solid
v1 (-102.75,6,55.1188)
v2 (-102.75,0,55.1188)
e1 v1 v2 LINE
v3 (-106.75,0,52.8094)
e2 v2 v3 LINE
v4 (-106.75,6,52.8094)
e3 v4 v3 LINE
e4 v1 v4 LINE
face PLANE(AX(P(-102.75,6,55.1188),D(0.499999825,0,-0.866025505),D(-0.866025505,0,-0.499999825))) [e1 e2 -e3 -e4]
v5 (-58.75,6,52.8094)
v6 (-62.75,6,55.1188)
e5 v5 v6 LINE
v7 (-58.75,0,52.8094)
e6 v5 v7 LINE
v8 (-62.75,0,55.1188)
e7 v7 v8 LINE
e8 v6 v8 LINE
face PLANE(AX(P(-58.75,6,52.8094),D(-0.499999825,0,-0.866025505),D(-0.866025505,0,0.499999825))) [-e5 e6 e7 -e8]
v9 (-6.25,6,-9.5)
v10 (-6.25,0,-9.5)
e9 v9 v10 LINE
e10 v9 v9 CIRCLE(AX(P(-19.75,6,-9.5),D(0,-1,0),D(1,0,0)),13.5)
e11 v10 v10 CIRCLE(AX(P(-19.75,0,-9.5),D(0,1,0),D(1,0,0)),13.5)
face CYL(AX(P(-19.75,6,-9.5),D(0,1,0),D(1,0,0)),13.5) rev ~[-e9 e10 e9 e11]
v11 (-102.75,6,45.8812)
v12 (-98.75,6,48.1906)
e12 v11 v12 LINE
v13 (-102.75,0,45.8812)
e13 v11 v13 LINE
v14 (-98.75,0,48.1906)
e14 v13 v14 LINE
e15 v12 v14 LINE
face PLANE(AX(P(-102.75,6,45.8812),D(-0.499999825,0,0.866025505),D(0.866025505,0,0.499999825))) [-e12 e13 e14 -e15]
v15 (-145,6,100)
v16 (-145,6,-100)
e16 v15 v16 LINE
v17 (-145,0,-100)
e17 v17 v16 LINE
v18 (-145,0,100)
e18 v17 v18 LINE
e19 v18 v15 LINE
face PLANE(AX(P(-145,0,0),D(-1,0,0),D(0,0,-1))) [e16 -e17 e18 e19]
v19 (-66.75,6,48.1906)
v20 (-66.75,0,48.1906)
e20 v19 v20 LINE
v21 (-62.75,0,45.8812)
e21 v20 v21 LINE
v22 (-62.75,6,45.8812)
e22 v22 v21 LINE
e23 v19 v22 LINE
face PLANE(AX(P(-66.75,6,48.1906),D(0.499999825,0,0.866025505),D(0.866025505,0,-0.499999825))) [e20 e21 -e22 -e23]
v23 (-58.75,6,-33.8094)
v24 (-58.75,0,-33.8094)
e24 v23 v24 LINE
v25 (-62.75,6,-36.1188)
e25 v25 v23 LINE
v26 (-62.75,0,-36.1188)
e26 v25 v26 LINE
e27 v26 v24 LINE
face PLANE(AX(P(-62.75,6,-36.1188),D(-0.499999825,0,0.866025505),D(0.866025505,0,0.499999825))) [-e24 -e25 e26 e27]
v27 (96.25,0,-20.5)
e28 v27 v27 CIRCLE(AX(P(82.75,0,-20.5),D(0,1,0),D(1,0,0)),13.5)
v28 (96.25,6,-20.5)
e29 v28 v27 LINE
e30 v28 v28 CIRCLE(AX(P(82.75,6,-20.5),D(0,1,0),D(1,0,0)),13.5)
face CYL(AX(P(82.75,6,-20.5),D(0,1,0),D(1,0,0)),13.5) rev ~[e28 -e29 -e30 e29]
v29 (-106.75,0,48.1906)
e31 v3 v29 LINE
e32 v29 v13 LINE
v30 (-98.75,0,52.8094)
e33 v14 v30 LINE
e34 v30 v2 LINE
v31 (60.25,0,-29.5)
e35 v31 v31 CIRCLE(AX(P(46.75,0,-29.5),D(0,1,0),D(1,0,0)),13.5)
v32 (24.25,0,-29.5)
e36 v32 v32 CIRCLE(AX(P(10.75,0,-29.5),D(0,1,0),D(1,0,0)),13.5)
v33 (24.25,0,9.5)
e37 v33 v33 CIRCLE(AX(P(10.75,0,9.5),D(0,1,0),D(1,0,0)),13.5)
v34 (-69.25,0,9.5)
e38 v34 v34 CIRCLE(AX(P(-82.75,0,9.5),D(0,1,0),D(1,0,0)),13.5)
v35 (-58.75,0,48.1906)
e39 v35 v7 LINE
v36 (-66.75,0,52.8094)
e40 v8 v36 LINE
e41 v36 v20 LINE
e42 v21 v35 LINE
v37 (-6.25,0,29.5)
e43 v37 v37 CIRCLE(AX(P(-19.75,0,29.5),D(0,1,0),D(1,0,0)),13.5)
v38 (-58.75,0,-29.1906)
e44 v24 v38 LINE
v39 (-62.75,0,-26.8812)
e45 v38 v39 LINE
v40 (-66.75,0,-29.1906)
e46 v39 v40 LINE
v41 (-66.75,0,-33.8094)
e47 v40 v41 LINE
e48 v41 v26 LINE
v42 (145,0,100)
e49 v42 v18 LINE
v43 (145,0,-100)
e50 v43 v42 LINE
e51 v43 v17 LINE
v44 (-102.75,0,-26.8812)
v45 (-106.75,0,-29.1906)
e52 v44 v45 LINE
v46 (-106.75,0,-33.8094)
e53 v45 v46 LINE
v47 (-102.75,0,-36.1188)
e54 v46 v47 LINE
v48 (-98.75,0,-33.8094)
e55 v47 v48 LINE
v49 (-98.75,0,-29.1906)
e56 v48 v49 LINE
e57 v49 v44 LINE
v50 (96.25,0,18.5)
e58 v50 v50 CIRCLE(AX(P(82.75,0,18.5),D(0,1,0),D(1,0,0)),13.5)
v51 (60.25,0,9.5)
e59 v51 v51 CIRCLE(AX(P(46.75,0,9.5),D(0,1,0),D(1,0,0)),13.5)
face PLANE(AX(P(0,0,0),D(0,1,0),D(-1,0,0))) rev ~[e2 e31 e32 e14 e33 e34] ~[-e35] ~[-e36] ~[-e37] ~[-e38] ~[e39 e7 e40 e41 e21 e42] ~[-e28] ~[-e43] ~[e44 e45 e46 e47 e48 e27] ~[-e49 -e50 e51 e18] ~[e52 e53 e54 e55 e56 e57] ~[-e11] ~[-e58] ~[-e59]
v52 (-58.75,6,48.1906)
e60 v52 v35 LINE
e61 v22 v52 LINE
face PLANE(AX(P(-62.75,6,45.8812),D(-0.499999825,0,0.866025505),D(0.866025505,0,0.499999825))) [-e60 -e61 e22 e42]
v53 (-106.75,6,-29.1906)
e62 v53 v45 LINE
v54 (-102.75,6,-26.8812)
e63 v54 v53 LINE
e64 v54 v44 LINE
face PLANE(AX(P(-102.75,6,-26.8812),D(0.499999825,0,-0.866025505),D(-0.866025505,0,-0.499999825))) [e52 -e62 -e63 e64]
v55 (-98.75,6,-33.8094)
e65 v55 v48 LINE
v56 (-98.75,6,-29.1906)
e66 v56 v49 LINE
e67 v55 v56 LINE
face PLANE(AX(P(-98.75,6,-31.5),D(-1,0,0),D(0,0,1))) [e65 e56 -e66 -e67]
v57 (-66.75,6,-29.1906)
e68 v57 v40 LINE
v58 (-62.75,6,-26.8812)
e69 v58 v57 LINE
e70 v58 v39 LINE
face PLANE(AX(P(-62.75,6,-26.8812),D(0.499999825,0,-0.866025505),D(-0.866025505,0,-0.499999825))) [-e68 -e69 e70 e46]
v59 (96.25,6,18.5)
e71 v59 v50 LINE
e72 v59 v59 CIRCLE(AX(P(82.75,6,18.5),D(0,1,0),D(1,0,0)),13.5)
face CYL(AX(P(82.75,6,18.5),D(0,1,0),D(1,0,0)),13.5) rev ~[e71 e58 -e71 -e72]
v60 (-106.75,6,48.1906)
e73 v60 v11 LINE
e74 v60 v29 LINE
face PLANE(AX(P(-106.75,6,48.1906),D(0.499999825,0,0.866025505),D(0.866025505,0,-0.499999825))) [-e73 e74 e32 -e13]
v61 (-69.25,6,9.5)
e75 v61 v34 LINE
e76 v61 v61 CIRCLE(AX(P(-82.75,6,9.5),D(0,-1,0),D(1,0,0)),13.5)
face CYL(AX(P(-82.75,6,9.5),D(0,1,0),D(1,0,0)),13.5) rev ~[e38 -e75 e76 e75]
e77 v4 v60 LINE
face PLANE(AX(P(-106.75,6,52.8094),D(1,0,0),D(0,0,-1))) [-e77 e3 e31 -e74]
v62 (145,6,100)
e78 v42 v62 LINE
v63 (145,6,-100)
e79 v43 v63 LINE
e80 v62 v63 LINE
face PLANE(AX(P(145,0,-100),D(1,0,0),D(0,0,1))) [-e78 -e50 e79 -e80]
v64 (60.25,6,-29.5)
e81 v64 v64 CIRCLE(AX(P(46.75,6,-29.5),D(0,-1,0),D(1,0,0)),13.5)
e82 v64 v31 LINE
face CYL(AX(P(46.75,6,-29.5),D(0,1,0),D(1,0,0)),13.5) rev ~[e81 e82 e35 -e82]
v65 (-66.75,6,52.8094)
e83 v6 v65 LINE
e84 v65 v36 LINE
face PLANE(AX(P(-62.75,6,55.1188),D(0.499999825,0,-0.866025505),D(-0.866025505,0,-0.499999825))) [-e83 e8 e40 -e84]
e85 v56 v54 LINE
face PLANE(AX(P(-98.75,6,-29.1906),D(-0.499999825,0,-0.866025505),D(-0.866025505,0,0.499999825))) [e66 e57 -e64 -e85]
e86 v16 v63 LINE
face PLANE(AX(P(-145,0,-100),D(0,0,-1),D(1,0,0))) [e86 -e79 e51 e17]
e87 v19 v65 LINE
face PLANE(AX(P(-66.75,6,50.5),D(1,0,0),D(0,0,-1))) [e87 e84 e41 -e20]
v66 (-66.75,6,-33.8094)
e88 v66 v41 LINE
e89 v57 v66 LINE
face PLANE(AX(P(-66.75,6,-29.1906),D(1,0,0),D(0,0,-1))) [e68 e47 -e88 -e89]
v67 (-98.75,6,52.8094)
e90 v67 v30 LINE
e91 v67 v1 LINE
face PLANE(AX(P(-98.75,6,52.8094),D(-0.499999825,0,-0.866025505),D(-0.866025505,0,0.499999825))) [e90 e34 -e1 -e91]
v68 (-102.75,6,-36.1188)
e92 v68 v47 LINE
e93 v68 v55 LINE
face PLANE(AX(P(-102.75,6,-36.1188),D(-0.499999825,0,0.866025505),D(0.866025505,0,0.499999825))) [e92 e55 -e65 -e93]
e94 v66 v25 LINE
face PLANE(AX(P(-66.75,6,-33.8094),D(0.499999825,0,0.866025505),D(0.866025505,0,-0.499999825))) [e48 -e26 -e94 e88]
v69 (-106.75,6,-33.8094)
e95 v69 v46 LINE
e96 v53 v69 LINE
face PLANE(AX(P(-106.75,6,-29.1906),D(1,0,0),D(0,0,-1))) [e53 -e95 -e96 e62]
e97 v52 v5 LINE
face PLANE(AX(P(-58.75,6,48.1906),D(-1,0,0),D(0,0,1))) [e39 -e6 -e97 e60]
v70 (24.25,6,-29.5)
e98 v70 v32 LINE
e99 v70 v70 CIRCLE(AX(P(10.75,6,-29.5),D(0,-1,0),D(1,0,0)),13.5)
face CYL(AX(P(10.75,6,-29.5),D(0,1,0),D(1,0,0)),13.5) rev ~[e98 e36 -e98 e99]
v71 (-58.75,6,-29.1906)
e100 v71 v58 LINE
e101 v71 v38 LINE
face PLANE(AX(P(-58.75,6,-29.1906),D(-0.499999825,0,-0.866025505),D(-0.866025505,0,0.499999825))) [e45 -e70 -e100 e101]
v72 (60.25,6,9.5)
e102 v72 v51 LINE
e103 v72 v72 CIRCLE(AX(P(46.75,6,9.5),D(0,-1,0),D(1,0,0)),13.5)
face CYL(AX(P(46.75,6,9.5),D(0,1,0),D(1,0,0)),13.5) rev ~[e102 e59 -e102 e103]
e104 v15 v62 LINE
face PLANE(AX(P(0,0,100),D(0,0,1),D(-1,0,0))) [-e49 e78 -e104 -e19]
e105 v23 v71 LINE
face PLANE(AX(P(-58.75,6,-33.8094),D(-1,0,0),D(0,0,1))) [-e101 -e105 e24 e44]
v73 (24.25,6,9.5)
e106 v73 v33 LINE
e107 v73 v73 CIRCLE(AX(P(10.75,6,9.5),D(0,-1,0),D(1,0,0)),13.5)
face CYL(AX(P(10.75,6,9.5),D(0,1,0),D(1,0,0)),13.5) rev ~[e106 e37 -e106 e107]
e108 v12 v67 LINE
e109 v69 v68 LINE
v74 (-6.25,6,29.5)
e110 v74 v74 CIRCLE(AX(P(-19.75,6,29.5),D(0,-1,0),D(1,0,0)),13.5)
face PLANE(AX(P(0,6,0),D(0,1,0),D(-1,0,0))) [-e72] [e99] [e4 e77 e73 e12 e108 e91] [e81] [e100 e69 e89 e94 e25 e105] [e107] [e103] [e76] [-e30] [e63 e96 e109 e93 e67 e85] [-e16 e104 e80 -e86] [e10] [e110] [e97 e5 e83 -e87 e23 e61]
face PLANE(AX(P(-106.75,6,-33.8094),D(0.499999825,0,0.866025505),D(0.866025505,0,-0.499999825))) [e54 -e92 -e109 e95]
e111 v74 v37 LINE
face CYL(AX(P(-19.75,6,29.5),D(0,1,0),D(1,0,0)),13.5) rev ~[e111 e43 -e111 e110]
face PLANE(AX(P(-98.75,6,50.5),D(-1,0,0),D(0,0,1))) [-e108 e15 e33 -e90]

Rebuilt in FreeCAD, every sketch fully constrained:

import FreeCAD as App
import Part
import Sketcher

V = App.Vector
Q = App.Units.Quantity


def add_polygon(sketch, points):
    """Adds a closed chain of lines whose ends are joined by coincident constraints."""
    first, n = sketch.GeometryCount, len(points)
    for a, b in zip(points, points[1:] + points[:1]):
        sketch.addGeometry(Part.LineSegment(App.Vector(*a, 0), App.Vector(*b, 0)), False)
    for i in range(n):
        sketch.addConstraint(Sketcher.Constraint("Coincident", first + i, 2, first + (i + 1) % n, 1))

doc = App.newDocument("Part")
body = doc.addObject("PartDesign::Body", "Body")

sketch1 = body.newObject("Sketcher::SketchObject", "Sketch")
sketch1.AttachmentSupport = (doc.getObject("XZ_Plane"), [""])
sketch1.MapMode = "FlatFace"
add_polygon(sketch1, [(-145, -100), (-145, 100), (145, 100), (145, -100)])
sketch1.addConstraint([
    Sketcher.Constraint("Vertical", 0),
    Sketcher.Constraint("Horizontal", 1),
    Sketcher.Constraint("Vertical", 2),
    Sketcher.Constraint("Horizontal", 3),
    Sketcher.Constraint("Symmetric", 0, 2, 2, 2, -1, 1),
    Sketcher.Constraint("DistanceX", 1, 1, 1, 2, Q("290 mm")),
    Sketcher.Constraint("DistanceY", 0, 1, 0, 2, Q("200 mm")),
])
pad1 = body.newObject("PartDesign::Pad", "Pad")
pad1.Profile = sketch1
pad1.Length = 6
pad1.Reversed = True

sketch2 = body.newObject("Sketcher::SketchObject", "Sketch001")
sketch2.AttachmentSupport = (doc.getObject("XZ_Plane"), [""])
sketch2.MapMode = "FlatFace"
sketch2.AttachmentOffset = App.Placement(V(0, 0, -6), App.Rotation())
sketch2.addGeometry(Part.Circle(V(-19.75, 29.5, 0), V(0, 0, 1), 13.5), False)
sketch2.addGeometry(Part.Circle(V(82.75, 18.5, 0), V(0, 0, 1), 13.5), False)
sketch2.addGeometry(Part.Circle(V(10.75, 9.5, 0), V(0, 0, 1), 13.5), False)
add_polygon(sketch2, [(-58.75, 48.1906), (-62.75, 45.8812), (-66.75, 48.1906), (-66.75, 52.8094), (-62.75, 55.1188), (-58.75, 52.8094)])
sketch2.addGeometry(Part.Circle(V(-82.75, 9.5, 0), V(0, 0, 1), 13.5), False)
sketch2.addGeometry(Part.Circle(V(-19.75, -9.5, 0), V(0, 0, 1), 13.5), False)
add_polygon(sketch2, [(-66.75, -29.1906), (-62.75, -26.8812), (-58.75, -29.1906), (-58.75, -33.8094), (-62.75, -36.1188), (-66.75, -33.8094)])
sketch2.addGeometry(Part.Circle(V(82.75, -20.5, 0), V(0, 0, 1), 13.5), False)
sketch2.addGeometry(Part.Circle(V(46.75, -29.5, 0), V(0, 0, 1), 13.5), False)
sketch2.addGeometry(Part.Circle(V(46.75, 9.5, 0), V(0, 0, 1), 13.5), False)
sketch2.addGeometry(Part.Circle(V(10.75, -29.5, 0), V(0, 0, 1), 13.5), False)
add_polygon(sketch2, [(-98.75, 52.8094), (-98.75, 48.1906), (-102.75, 45.8812), (-106.75, 48.1906), (-106.75, 52.8094), (-102.75, 55.1188)])
add_polygon(sketch2, [(-98.75, -29.1906), (-98.75, -33.8094), (-102.75, -36.1188), (-106.75, -33.8094), (-106.75, -29.1906), (-102.75, -26.8812)])
sketch2.addConstraint([
    Sketcher.Constraint("Vertical", 5),
    Sketcher.Constraint("Vertical", 8),
    Sketcher.Constraint("Vertical", 13),
    Sketcher.Constraint("Vertical", 16),
    Sketcher.Constraint("Vertical", 21),
    Sketcher.Constraint("Vertical", 24),
    Sketcher.Constraint("Vertical", 27),
    Sketcher.Constraint("Vertical", 30),
    Sketcher.Constraint("Equal", 0, 1),
    Sketcher.Constraint("Equal", 1, 2),
    Sketcher.Constraint("Equal", 2, 9),
    Sketcher.Constraint("Equal", 9, 10),
    Sketcher.Constraint("Equal", 10, 17),
    Sketcher.Constraint("Equal", 17, 18),
    Sketcher.Constraint("Equal", 18, 19),
    Sketcher.Constraint("Equal", 19, 20),
    Sketcher.Constraint("Parallel", 3, 6),
    Sketcher.Constraint("Parallel", 4, 7),
    Sketcher.Constraint("Parallel", 6, 11),
    Sketcher.Constraint("Parallel", 7, 12),
    Sketcher.Constraint("Parallel", 11, 14),
    Sketcher.Constraint("Parallel", 12, 15),
    Sketcher.Constraint("Parallel", 14, 22),
    Sketcher.Constraint("Parallel", 15, 23),
    Sketcher.Constraint("Parallel", 22, 25),
    Sketcher.Constraint("Parallel", 23, 26),
    Sketcher.Constraint("Parallel", 25, 28),
    Sketcher.Constraint("Parallel", 26, 29),
    Sketcher.Constraint("Parallel", 28, 31),
    Sketcher.Constraint("Parallel", 29, 32),
    Sketcher.Constraint("Horizontal", 2, 3, 9, 3),
    Sketcher.Constraint("Horizontal", 9, 3, 19, 3),
    Sketcher.Constraint("Horizontal", 18, 3, 20, 3),
    Sketcher.Constraint("Horizontal", 5, 2, 7, 2),
    Sketcher.Constraint("Horizontal", 4, 2, 8, 2),
    Sketcher.Constraint("Horizontal", 13, 2, 15, 2),
    Sketcher.Constraint("Horizontal", 12, 2, 16, 2),
    Sketcher.Constraint("Horizontal", 8, 2, 21, 2),
    Sketcher.Constraint("Horizontal", 3, 2, 22, 2),
    Sketcher.Constraint("Horizontal", 21, 2, 23, 2),
    Sketcher.Constraint("Horizontal", 7, 2, 24, 2),
    Sketcher.Constraint("Horizontal", 6, 2, 25, 2),
    Sketcher.Constraint("Horizontal", 15, 2, 27, 2),
    Sketcher.Constraint("Horizontal", 14, 2, 28, 2),
    Sketcher.Constraint("Horizontal", 27, 2, 29, 2),
    Sketcher.Constraint("Horizontal", 16, 2, 30, 2),
    Sketcher.Constraint("Horizontal", 11, 2, 31, 2),
    Sketcher.Constraint("Vertical", 0, 3, 10, 3),
    Sketcher.Constraint("Vertical", 1, 3, 17, 3),
    Sketcher.Constraint("Vertical", 18, 3, 19, 3),
    Sketcher.Constraint("Vertical", 2, 3, 20, 3),
    Sketcher.Constraint("Vertical", 3, 2, 6, 2),
    Sketcher.Constraint("Vertical", 6, 2, 11, 2),
    Sketcher.Constraint("Vertical", 8, 2, 12, 2),
    Sketcher.Constraint("Vertical", 26, 2, 27, 2),
    Sketcher.Constraint("Equal", 8, 13),
    Sketcher.Constraint("Diameter", 0, Q("27 mm")),
    Sketcher.Constraint("DistanceY", 1, 3, 0, 3, Q("11 mm")),
    Sketcher.Constraint("DistanceY", 2, 3, 0, 3, Q("20 mm")),
    Sketcher.Constraint("DistanceX", 9, 3, 0, 3, Q("63 mm")),
    Sketcher.Constraint("DistanceY", 10, 3, 2, 3, Q("19 mm")),
    Sketcher.Constraint("DistanceY", 17, 3, 10, 3, Q("11 mm")),
    Sketcher.Constraint("DistanceX", 18, 3, 17, 3, Q("36 mm")),
    Sketcher.Constraint("DistanceY", 18, 3, 17, 3, Q("9 mm")),
    Sketcher.Constraint("DistanceX", 2, 3, 18, 3, Q("36 mm")),
    Sketcher.Constraint("DistanceX", 9, 3, 3, 2, Q("20 mm")),
    Sketcher.Constraint("DistanceX", 5, 2, 7, 2, Q("8 mm")),
    Sketcher.Constraint("DistanceX", 21, 2, 3, 2, Q("36 mm")),
    Sketcher.Constraint("DistanceX", 0, 3, 2, 3, Q("30.5 mm")),
    Sketcher.Constraint("Angle", 3, Q("-150 deg")),
    Sketcher.Constraint("DistanceY", -1, 1, 0, 3, Q("29.5 mm")),
    Sketcher.Constraint("DistanceX", 0, 3, -1, 1, Q("19.75 mm")),
    Sketcher.Constraint("DistanceY", 5, 1, 5, 2, Q("4.6188 mm")),
    Sketcher.Constraint("DistanceY", -1, 1, 3, 2, Q("45.8812 mm")),
    Sketcher.Constraint("DistanceY", 11, 2, -1, 1, Q("26.8812 mm")),
])
pocket1 = body.newObject("PartDesign::Pocket", "Pocket")
pocket1.Profile = sketch2
pocket1.Length = 30
pocket1.Reversed = True

doc.recompute()
